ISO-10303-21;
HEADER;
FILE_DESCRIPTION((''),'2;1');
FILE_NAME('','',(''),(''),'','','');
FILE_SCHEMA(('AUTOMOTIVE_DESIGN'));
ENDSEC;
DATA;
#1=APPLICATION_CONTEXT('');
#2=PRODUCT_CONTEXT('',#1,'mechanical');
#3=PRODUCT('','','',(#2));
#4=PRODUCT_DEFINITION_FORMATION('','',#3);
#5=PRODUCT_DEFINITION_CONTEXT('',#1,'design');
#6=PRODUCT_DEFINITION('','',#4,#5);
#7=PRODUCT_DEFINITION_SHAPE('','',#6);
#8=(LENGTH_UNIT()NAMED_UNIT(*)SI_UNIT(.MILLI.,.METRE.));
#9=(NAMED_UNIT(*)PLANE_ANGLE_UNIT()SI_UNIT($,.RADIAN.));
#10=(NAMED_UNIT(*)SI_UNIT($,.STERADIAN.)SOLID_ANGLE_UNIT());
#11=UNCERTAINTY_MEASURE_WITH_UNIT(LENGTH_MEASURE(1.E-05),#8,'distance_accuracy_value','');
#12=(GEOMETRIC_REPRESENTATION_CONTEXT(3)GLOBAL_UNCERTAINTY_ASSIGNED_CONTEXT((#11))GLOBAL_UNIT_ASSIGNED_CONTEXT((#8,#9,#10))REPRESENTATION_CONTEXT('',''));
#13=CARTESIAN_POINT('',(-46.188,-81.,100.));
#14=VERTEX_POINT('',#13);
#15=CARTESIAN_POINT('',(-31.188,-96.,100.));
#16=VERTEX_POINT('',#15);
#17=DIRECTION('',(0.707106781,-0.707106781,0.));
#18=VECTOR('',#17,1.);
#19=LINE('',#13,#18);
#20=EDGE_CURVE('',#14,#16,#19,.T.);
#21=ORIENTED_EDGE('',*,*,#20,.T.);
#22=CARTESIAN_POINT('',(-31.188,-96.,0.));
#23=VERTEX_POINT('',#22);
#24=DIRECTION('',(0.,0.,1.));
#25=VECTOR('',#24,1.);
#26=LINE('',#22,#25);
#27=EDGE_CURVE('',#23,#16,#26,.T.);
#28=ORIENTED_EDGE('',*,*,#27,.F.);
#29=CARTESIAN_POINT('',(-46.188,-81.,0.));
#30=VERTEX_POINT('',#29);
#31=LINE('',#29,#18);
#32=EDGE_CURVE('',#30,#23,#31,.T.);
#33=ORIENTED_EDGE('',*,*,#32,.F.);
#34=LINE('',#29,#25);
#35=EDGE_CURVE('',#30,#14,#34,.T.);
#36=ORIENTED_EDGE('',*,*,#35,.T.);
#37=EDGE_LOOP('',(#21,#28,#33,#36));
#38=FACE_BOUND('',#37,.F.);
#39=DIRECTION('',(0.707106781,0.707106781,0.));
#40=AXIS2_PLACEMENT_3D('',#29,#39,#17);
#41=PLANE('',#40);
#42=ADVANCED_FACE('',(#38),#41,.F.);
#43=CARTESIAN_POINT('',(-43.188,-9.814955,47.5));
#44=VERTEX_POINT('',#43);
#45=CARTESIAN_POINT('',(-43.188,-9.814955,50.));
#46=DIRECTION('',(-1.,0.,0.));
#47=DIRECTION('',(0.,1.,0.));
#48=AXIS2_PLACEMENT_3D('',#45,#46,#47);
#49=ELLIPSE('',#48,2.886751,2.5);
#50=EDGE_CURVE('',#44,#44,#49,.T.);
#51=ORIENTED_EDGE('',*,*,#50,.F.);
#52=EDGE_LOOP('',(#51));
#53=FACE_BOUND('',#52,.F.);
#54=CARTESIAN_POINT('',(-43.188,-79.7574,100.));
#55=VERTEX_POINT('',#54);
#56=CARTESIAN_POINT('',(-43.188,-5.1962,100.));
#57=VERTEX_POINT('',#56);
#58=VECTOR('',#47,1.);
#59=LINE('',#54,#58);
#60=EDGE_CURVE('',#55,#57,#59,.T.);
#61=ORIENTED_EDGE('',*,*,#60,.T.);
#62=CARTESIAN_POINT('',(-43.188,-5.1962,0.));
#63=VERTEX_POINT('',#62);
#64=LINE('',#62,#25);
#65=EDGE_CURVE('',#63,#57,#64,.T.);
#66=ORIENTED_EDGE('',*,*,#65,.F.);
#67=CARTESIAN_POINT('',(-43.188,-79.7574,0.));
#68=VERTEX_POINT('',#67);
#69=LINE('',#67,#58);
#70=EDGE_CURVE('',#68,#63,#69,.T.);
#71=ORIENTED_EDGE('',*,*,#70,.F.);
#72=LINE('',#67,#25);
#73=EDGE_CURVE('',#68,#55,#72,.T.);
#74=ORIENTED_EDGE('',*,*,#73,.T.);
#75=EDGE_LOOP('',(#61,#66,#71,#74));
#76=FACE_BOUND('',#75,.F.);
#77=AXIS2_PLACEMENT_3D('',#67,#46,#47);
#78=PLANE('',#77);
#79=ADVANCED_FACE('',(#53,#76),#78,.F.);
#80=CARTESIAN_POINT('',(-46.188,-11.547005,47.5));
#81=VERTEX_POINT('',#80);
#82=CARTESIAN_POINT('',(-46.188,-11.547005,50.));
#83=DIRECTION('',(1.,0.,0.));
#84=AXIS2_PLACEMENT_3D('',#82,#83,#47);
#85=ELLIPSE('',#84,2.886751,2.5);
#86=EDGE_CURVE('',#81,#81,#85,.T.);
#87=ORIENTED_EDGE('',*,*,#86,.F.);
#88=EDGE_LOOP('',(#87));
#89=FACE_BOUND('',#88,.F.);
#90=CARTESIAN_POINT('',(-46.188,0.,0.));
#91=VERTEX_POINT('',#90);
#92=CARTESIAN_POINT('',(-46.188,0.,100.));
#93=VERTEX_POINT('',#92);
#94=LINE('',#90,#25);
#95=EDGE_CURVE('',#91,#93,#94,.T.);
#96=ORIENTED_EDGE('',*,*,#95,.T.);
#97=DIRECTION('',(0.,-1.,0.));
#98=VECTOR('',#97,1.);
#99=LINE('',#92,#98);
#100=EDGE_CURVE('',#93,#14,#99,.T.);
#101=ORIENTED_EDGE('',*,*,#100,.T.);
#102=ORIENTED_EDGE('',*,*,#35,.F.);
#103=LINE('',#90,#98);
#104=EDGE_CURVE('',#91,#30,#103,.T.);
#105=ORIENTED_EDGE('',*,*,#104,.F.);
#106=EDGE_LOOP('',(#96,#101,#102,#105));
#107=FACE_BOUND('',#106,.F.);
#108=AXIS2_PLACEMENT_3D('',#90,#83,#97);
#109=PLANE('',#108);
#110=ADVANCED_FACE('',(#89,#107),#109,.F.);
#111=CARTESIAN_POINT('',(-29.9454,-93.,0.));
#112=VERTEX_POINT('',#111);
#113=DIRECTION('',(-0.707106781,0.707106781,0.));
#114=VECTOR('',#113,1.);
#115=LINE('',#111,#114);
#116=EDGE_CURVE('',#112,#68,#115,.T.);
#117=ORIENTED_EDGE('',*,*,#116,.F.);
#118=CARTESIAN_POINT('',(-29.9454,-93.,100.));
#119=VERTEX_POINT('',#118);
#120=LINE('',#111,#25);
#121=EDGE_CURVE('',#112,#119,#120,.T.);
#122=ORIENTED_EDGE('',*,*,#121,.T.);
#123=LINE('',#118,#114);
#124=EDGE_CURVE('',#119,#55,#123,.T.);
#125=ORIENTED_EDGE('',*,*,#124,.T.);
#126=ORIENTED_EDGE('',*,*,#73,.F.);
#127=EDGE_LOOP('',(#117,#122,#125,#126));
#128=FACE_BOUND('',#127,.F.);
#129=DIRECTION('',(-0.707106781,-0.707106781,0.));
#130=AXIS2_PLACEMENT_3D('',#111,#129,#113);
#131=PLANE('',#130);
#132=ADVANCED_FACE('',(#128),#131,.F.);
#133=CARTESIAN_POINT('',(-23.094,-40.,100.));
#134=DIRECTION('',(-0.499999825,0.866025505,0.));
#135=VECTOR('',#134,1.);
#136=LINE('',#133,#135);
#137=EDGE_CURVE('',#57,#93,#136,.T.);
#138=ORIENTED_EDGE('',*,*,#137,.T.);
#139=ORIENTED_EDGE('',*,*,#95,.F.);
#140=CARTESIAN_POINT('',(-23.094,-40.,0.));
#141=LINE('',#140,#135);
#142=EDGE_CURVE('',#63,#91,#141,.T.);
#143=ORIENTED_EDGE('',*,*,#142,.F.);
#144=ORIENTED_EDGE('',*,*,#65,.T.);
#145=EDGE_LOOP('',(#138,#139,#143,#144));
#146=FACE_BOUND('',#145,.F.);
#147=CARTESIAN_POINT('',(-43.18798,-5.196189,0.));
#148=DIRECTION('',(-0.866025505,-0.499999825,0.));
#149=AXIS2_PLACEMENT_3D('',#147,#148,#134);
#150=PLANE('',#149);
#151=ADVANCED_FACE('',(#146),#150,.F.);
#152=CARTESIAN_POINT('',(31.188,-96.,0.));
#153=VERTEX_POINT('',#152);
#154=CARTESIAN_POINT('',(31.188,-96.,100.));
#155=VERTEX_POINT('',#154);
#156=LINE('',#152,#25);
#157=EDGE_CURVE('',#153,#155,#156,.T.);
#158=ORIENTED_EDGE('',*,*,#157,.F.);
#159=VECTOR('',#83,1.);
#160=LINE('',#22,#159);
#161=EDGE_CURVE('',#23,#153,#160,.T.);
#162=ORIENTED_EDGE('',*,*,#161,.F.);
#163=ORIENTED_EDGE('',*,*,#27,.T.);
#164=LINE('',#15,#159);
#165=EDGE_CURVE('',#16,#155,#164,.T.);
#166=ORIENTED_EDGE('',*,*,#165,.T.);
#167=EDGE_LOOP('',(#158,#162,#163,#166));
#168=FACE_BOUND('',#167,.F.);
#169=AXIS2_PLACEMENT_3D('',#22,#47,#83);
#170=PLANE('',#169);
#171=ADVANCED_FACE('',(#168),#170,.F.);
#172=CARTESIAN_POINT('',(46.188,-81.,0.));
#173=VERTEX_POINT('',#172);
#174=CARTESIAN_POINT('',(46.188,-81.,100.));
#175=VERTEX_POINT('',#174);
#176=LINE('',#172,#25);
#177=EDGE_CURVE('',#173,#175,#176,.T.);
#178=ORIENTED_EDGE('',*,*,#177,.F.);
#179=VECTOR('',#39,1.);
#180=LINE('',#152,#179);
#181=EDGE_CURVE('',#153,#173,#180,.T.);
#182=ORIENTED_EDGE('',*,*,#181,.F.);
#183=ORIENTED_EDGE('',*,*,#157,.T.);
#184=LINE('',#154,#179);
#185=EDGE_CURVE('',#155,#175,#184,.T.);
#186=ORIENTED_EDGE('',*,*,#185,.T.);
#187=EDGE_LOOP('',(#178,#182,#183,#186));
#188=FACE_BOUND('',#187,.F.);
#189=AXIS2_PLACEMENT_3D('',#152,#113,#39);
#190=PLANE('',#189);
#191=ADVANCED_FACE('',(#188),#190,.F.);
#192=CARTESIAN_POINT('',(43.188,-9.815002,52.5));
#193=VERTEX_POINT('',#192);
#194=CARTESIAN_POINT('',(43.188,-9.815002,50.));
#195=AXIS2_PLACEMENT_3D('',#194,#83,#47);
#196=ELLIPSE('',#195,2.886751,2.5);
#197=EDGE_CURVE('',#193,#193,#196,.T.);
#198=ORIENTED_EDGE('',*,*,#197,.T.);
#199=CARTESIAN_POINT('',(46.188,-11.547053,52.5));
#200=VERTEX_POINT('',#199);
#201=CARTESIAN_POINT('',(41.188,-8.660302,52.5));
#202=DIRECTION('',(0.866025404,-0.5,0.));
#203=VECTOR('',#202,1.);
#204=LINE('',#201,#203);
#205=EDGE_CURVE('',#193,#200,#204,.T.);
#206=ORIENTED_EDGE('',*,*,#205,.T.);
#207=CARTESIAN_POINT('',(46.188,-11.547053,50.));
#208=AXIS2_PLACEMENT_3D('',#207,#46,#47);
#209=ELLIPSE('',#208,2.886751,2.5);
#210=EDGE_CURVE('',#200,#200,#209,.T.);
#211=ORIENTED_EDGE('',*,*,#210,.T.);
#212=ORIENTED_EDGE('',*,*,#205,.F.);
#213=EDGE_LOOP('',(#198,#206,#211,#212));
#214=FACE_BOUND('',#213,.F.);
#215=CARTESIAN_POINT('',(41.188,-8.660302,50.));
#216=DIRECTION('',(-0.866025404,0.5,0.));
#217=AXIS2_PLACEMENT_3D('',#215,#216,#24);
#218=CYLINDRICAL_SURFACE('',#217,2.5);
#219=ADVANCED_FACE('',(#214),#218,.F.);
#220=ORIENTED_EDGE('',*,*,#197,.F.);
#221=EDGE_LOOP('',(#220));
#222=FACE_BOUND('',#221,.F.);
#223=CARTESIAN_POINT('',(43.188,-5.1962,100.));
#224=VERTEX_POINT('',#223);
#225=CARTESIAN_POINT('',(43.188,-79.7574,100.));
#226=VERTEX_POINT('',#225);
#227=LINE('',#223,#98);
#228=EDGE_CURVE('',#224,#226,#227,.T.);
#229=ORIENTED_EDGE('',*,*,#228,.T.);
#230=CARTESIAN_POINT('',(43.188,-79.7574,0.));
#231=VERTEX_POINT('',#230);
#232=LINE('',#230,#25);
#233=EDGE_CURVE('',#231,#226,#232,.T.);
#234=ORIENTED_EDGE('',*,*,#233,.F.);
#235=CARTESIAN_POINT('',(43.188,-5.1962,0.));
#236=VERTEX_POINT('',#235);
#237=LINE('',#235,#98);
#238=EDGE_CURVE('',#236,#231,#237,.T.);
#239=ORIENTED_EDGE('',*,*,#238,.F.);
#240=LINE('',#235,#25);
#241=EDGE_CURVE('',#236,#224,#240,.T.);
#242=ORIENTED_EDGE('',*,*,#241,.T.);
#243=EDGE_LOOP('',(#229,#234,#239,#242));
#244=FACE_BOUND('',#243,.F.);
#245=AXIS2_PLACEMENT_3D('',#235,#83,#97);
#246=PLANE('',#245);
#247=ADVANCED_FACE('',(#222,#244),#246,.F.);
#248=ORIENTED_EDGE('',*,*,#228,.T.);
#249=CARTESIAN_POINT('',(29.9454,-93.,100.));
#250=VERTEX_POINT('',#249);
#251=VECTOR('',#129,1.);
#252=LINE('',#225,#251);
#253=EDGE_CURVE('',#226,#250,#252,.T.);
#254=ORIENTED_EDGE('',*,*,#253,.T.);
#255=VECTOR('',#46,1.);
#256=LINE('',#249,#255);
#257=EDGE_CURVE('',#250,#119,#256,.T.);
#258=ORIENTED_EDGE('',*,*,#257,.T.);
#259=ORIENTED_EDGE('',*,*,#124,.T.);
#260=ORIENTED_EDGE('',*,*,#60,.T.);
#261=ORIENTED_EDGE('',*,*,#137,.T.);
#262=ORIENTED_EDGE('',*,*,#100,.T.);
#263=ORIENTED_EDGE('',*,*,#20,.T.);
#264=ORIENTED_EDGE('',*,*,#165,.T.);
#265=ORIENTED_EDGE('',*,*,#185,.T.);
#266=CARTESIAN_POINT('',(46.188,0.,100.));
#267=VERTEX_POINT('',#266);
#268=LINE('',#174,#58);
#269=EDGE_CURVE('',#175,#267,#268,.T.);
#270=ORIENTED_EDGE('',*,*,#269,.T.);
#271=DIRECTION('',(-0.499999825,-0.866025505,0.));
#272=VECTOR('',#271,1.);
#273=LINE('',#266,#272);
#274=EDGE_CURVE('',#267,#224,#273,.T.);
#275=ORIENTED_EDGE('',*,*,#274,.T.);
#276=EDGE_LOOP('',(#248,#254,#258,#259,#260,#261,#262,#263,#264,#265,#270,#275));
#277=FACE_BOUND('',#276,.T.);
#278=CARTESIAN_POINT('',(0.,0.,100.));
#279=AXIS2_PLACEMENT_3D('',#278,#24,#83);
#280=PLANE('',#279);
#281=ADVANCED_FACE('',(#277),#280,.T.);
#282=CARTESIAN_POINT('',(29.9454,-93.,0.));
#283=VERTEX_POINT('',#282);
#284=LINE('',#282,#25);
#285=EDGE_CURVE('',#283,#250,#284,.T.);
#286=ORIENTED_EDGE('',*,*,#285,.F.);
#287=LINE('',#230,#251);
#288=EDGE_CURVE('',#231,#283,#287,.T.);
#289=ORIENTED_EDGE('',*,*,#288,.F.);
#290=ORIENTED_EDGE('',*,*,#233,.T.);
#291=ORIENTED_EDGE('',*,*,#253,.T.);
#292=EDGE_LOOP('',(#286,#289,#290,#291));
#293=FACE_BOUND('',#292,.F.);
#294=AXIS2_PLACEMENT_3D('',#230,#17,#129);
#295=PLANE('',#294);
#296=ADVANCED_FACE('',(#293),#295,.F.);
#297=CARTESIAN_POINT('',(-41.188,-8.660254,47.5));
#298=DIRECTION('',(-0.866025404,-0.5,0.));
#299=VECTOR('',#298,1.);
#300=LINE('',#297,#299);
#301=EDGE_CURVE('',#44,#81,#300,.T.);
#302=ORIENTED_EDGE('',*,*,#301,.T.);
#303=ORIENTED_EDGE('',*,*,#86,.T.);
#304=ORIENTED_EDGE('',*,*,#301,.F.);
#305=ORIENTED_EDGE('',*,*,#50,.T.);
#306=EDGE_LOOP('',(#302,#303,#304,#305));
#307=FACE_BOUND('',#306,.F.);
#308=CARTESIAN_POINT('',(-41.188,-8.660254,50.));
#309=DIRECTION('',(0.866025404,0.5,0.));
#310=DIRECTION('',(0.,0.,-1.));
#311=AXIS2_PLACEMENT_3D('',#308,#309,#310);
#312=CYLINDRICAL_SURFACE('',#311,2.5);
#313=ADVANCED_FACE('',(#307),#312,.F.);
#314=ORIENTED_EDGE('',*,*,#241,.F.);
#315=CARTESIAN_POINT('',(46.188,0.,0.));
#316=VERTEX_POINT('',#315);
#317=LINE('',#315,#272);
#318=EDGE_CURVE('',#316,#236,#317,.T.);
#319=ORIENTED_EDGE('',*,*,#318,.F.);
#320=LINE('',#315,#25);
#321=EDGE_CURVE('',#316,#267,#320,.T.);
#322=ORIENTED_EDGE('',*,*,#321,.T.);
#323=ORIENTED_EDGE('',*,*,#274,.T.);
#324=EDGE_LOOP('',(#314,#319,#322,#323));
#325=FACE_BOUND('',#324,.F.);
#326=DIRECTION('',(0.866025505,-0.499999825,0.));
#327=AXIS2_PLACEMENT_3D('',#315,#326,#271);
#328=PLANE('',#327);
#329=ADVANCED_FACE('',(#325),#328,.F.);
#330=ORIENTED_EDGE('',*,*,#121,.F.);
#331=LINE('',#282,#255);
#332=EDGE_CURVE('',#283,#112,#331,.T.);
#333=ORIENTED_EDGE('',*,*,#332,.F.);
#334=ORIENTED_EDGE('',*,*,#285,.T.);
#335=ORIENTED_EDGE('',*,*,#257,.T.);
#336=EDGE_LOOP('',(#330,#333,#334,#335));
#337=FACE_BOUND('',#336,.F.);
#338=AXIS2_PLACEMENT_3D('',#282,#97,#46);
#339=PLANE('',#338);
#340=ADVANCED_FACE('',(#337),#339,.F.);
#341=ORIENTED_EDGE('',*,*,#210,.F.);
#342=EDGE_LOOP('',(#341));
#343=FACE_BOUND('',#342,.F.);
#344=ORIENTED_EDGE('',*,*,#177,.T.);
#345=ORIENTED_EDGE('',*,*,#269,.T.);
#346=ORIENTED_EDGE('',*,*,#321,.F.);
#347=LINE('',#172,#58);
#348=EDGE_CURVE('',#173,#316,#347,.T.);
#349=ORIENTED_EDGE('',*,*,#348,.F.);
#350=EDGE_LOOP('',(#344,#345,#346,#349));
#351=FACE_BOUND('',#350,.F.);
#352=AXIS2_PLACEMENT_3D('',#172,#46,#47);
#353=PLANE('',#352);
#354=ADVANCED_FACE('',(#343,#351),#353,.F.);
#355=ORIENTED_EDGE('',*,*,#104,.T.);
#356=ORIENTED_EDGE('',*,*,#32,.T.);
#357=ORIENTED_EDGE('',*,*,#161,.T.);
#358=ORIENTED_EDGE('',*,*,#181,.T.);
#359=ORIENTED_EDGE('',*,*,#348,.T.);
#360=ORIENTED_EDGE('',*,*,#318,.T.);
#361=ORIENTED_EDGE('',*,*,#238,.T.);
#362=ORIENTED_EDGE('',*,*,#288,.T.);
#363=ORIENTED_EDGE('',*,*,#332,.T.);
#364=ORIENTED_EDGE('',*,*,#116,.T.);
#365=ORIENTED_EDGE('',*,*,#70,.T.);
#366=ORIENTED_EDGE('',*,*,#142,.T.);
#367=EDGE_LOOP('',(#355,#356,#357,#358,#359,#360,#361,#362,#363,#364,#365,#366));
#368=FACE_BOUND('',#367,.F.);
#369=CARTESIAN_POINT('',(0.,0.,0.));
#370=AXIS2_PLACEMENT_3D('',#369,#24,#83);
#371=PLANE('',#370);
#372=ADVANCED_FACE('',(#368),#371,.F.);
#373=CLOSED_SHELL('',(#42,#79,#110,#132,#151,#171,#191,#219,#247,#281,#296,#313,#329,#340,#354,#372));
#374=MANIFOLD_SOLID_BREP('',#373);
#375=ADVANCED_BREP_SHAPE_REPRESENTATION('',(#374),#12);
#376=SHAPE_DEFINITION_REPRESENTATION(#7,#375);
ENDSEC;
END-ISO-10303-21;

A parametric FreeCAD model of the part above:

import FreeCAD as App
import Part
import Sketcher
Q = App.Units.Quantity

doc = App.newDocument("Part")
params = doc.addObject("Spreadsheet::Sheet", "Params")
for row, (alias, value) in enumerate([
    ("sketch1_height", "81 mm"),
    ("pad1_length", "100 mm"),
    ("sketch2_diameter", "5 mm"),
    ("sketch3_diameter", "5 mm"),
], start=1):
    params.set(f"A{row}", alias)
    params.set(f"B{row}", "=" + value)
    params.setAlias(f"B{row}", alias)

body = doc.addObject("PartDesign::Body", "Body")

# Sketch on XY plane
sketch1 = body.newObject("Sketcher::SketchObject", "Sketch")
sketch1.AttachmentSupport = (doc.getObject("XY_Plane"), [""])
sketch1.MapMode = "FlatFace"
sketch1.addGeometry([
    Part.LineSegment(App.Vector(-43, -5, 0), App.Vector(-46, 0, 0)),  # 0
    Part.LineSegment(App.Vector(-46, 0, 0), App.Vector(-46, -81, 0)),  # 1
    Part.LineSegment(App.Vector(-46, -81, 0), App.Vector(-31, -96, 0)),  # 2
    Part.LineSegment(App.Vector(-31, -96, 0), App.Vector(31, -96, 0)),  # 3
    Part.LineSegment(App.Vector(31, -96, 0), App.Vector(46, -81, 0)),  # 4
    Part.LineSegment(App.Vector(46, -81, 0), App.Vector(46, 0, 0)),  # 5
    Part.LineSegment(App.Vector(46, 0, 0), App.Vector(43, -5, 0)),  # 6
    Part.LineSegment(App.Vector(43, -5, 0), App.Vector(43, -80, 0)),  # 7
    Part.LineSegment(App.Vector(43, -80, 0), App.Vector(30, -93, 0)),  # 8
    Part.LineSegment(App.Vector(30, -93, 0), App.Vector(-30, -93, 0)),  # 9
    Part.LineSegment(App.Vector(-30, -93, 0), App.Vector(-43, -80, 0)),  # 10
    Part.LineSegment(App.Vector(-43, -80, 0), App.Vector(-43, -5, 0)),  # 11
], False)
sketch1.addConstraint([
    Sketcher.Constraint("Coincident", 0, 2, 1, 1),
    Sketcher.Constraint("Coincident", 1, 2, 2, 1),
    Sketcher.Constraint("Coincident", 2, 2, 3, 1),
    Sketcher.Constraint("Coincident", 3, 2, 4, 1),
    Sketcher.Constraint("Coincident", 4, 2, 5, 1),
    Sketcher.Constraint("Coincident", 5, 2, 6, 1),
    Sketcher.Constraint("Coincident", 6, 2, 7, 1),
    Sketcher.Constraint("Coincident", 7, 2, 8, 1),
    Sketcher.Constraint("Coincident", 8, 2, 9, 1),
    Sketcher.Constraint("Coincident", 9, 2, 10, 1),
    Sketcher.Constraint("Coincident", 10, 2, 11, 1),
    Sketcher.Constraint("Coincident", 11, 2, 0, 1),
    Sketcher.Constraint("Vertical", 1),
    Sketcher.Constraint("Horizontal", 3),
    Sketcher.Constraint("Vertical", 5),
    Sketcher.Constraint("Vertical", 7),
    Sketcher.Constraint("Horizontal", 9),
    Sketcher.Constraint("Vertical", 11),
    Sketcher.Constraint("Symmetric", 0, 2, 5, 2, -1, 1),
    Sketcher.Constraint("Symmetric", 7, 2, 10, 2, -2),
    Sketcher.Constraint("PointOnObject", 0, 2, -1),
    Sketcher.Constraint("Perpendicular", 2, 4),
    Sketcher.Constraint("Parallel", 4, 8),
    Sketcher.Constraint("Perpendicular", 8, 10),
    Sketcher.Constraint("Horizontal", 1, 2, 4, 2),
    Sketcher.Constraint("Horizontal", 6, 2, 11, 2),
    Sketcher.Constraint("Equal", 2, 4),
    Sketcher.Constraint("DistanceX", 1, 2, 2, 2, Q("15 mm")),
    Sketcher.Constraint("DistanceX", 6, 2, 5, 2, Q("3 mm")),
    Sketcher.Constraint("DistanceY", 3, 2, 8, 2, Q("3 mm")),
    Sketcher.Constraint("DistanceY", 1, 2, 1, 1, Q("81 mm")),
    Sketcher.Constraint("Angle", 0, Q("120 deg")),
    Sketcher.Constraint("DistanceX", 3, 1, 3, 2, Q("62.376 mm")),
    Sketcher.Constraint("DistanceX", 9, 2, 9, 1, Q("59.8908 mm")),
])
sketch1.setExpression("Constraints[30]", "Params.sketch1_height")
pad1 = body.newObject("PartDesign::Pad", "Pad")
pad1.Profile = sketch1
pad1.setExpression("Length", "Params.pad1_length")

# Sketch on an angled plane
sketch2 = body.newObject("Sketcher::SketchObject", "Sketch001")
sketch2.Placement = App.Placement(App.Vector(-46.188, 0, 100), App.Rotation(App.Vector(0, 0, -1), App.Vector(-0.5, 0.866025404, 0), App.Vector(0.866025404, 0.5, 0), "ZXY"))
sketch2.addGeometry(Part.Circle(App.Vector(50, -10, 0), App.Vector(0, 0, 1), 2.5), False)
sketch2.addConstraint([
    Sketcher.Constraint("Diameter", 0, Q("5 mm")),
    Sketcher.Constraint("DistanceY", 0, 3, -1, 1, Q("10 mm")),
    Sketcher.Constraint("DistanceX", -1, 1, 0, 3, Q("50 mm")),
])
sketch2.setExpression("Constraints[0]", "Params.sketch2_diameter")
pocket1 = body.newObject("PartDesign::Pocket", "Pocket")
pocket1.Profile = sketch2
pocket1.Type = "ThroughAll"

# Sketch on an angled plane
sketch3 = body.newObject("Sketcher::SketchObject", "Sketch002")
sketch3.Placement = App.Placement(App.Vector(43.188, -5.1962, 0), App.Rotation(App.Vector(0, 0, 1), App.Vector(0.5, 0.866025404, 0), App.Vector(-0.866025404, 0.5, 0), "ZXY"))
sketch3.addGeometry(Part.Circle(App.Vector(50, -4, 0), App.Vector(0, 0, 1), 2.5), False)
sketch3.addConstraint([
    Sketcher.Constraint("Diameter", 0, Q("5 mm")),
    Sketcher.Constraint("DistanceX", -1, 1, 0, 3, Q("50 mm")),
    Sketcher.Constraint("DistanceY", 0, 3, -1, 1, Q("4 mm")),
])
sketch3.setExpression("Constraints[0]", "Params.sketch3_diameter")
pocket2 = body.newObject("PartDesign::Pocket", "Pocket001")
pocket2.Profile = sketch3
pocket2.Type = "ThroughAll"

doc.recompute()
